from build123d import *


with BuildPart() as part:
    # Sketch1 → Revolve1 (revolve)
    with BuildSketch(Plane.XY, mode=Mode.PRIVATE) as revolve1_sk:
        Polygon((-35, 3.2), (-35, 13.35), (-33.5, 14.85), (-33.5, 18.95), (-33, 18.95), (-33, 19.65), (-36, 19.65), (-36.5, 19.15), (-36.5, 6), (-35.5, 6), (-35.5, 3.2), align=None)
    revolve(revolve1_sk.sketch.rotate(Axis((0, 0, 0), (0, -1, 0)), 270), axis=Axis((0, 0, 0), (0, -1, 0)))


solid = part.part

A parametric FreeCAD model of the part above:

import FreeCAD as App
import Part
import Sketcher
Q = App.Units.Quantity

doc = App.newDocument("Part")
body = doc.addObject("PartDesign::Body", "Body")

# Sketch on XY plane
sketch1 = doc.addObject("Sketcher::SketchObject", "Sketch")
body.addObject(sketch1)
sketch1.AttachmentSupport = (doc.XY_Plane, [""])
sketch1.MapMode = "FlatFace"
sketch1.addGeometry(Part.LineSegment(App.Vector(-35, 3.2, 0), App.Vector(-35, 13.3, 0)), False)
sketch1.addGeometry(Part.LineSegment(App.Vector(-35, 13.3, 0), App.Vector(-33.5, 14.8, 0)), False)
sketch1.addGeometry(Part.LineSegment(App.Vector(-33.5, 14.8, 0), App.Vector(-33.5, 18.9, 0)), False)
sketch1.addGeometry(Part.LineSegment(App.Vector(-33.5, 18.9, 0), App.Vector(-33, 18.9, 0)), False)
sketch1.addGeometry(Part.LineSegment(App.Vector(-33, 18.9, 0), App.Vector(-33, 19.6, 0)), False)
sketch1.addGeometry(Part.LineSegment(App.Vector(-33, 19.6, 0), App.Vector(-36, 19.6, 0)), False)
sketch1.addGeometry(Part.LineSegment(App.Vector(-36, 19.6, 0), App.Vector(-36.5, 19.1, 0)), False)
sketch1.addGeometry(Part.LineSegment(App.Vector(-36.5, 19.1, 0), App.Vector(-36.5, 6, 0)), False)
sketch1.addGeometry(Part.LineSegment(App.Vector(-36.5, 6, 0), App.Vector(-35.5, 6, 0)), False)
sketch1.addGeometry(Part.LineSegment(App.Vector(-35.5, 6, 0), App.Vector(-35.5, 3.2, 0)), False)
sketch1.addGeometry(Part.LineSegment(App.Vector(-35.5, 3.2, 0), App.Vector(-35, 3.2, 0)), False)
sketch1.addConstraint(Sketcher.Constraint("Coincident", 0, 2, 1, 1))
sketch1.addConstraint(Sketcher.Constraint("Coincident", 1, 2, 2, 1))
sketch1.addConstraint(Sketcher.Constraint("Coincident", 2, 2, 3, 1))
sketch1.addConstraint(Sketcher.Constraint("Coincident", 3, 2, 4, 1))
sketch1.addConstraint(Sketcher.Constraint("Coincident", 4, 2, 5, 1))
sketch1.addConstraint(Sketcher.Constraint("Coincident", 5, 2, 6, 1))
sketch1.addConstraint(Sketcher.Constraint("Coincident", 6, 2, 7, 1))
sketch1.addConstraint(Sketcher.Constraint("Coincident", 7, 2, 8, 1))
sketch1.addConstraint(Sketcher.Constraint("Coincident", 8, 2, 9, 1))
sketch1.addConstraint(Sketcher.Constraint("Coincident", 9, 2, 10, 1))
sketch1.addConstraint(Sketcher.Constraint("Coincident", 10, 2, 0, 1))
sketch1.addConstraint(Sketcher.Constraint("Vertical", 0))
sketch1.addConstraint(Sketcher.Constraint("Vertical", 2))
sketch1.addConstraint(Sketcher.Constraint("Horizontal", 3))
sketch1.addConstraint(Sketcher.Constraint("Vertical", 4))
sketch1.addConstraint(Sketcher.Constraint("Horizontal", 5))
sketch1.addConstraint(Sketcher.Constraint("Vertical", 7))
sketch1.addConstraint(Sketcher.Constraint("Horizontal", 8))
sketch1.addConstraint(Sketcher.Constraint("Vertical", 9))
sketch1.addConstraint(Sketcher.Constraint("Horizontal", 10))
sketch1.addConstraint(Sketcher.Constraint("Parallel", 1, 6))
sketch1.addConstraint(Sketcher.Constraint("Equal", 3, 10))
sketch1.addConstraint(Sketcher.Constraint("DistanceX", 5, 2, 5, 1, 3.0))
sketch1.addConstraint(Sketcher.Constraint("DistanceX", 8, 1, 8, 2, 1.0))
sketch1.addConstraint(Sketcher.Constraint("Angle", 1, Q("45 deg")))
sketch1.addConstraint(Sketcher.Constraint("DistanceX", 3, 1, 3, 2, 0.5))
sketch1.addConstraint(Sketcher.Constraint("DistanceY", 2, 1, 2, 2, 4.1))
sketch1.addConstraint(Sketcher.Constraint("DistanceY", 4, 1, 4, 2, 0.7))
sketch1.addConstraint(Sketcher.Constraint("DistanceY", 9, 2, 9, 1, 2.8))
sketch1.addConstraint(Sketcher.Constraint("DistanceX", 0, 2, -1, 1, 35.0))
sketch1.addConstraint(Sketcher.Constraint("DistanceX", 3, 2, -1, 1, 33.0))
sketch1.addConstraint(Sketcher.Constraint("DistanceY", -1, 1, 7, 2, 6.0))
sketch1.addConstraint(Sketcher.Constraint("DistanceY", 0, 1, 0, 2, 10.15))
revolution = doc.addObject("PartDesign::Revolution", "Revolution")
body.addObject(revolution)
revolution.Profile = sketch1
revolution.ReferenceAxis = (sketch1, ["V_Axis"])
revolution.Angle = 360

doc.recompute()
